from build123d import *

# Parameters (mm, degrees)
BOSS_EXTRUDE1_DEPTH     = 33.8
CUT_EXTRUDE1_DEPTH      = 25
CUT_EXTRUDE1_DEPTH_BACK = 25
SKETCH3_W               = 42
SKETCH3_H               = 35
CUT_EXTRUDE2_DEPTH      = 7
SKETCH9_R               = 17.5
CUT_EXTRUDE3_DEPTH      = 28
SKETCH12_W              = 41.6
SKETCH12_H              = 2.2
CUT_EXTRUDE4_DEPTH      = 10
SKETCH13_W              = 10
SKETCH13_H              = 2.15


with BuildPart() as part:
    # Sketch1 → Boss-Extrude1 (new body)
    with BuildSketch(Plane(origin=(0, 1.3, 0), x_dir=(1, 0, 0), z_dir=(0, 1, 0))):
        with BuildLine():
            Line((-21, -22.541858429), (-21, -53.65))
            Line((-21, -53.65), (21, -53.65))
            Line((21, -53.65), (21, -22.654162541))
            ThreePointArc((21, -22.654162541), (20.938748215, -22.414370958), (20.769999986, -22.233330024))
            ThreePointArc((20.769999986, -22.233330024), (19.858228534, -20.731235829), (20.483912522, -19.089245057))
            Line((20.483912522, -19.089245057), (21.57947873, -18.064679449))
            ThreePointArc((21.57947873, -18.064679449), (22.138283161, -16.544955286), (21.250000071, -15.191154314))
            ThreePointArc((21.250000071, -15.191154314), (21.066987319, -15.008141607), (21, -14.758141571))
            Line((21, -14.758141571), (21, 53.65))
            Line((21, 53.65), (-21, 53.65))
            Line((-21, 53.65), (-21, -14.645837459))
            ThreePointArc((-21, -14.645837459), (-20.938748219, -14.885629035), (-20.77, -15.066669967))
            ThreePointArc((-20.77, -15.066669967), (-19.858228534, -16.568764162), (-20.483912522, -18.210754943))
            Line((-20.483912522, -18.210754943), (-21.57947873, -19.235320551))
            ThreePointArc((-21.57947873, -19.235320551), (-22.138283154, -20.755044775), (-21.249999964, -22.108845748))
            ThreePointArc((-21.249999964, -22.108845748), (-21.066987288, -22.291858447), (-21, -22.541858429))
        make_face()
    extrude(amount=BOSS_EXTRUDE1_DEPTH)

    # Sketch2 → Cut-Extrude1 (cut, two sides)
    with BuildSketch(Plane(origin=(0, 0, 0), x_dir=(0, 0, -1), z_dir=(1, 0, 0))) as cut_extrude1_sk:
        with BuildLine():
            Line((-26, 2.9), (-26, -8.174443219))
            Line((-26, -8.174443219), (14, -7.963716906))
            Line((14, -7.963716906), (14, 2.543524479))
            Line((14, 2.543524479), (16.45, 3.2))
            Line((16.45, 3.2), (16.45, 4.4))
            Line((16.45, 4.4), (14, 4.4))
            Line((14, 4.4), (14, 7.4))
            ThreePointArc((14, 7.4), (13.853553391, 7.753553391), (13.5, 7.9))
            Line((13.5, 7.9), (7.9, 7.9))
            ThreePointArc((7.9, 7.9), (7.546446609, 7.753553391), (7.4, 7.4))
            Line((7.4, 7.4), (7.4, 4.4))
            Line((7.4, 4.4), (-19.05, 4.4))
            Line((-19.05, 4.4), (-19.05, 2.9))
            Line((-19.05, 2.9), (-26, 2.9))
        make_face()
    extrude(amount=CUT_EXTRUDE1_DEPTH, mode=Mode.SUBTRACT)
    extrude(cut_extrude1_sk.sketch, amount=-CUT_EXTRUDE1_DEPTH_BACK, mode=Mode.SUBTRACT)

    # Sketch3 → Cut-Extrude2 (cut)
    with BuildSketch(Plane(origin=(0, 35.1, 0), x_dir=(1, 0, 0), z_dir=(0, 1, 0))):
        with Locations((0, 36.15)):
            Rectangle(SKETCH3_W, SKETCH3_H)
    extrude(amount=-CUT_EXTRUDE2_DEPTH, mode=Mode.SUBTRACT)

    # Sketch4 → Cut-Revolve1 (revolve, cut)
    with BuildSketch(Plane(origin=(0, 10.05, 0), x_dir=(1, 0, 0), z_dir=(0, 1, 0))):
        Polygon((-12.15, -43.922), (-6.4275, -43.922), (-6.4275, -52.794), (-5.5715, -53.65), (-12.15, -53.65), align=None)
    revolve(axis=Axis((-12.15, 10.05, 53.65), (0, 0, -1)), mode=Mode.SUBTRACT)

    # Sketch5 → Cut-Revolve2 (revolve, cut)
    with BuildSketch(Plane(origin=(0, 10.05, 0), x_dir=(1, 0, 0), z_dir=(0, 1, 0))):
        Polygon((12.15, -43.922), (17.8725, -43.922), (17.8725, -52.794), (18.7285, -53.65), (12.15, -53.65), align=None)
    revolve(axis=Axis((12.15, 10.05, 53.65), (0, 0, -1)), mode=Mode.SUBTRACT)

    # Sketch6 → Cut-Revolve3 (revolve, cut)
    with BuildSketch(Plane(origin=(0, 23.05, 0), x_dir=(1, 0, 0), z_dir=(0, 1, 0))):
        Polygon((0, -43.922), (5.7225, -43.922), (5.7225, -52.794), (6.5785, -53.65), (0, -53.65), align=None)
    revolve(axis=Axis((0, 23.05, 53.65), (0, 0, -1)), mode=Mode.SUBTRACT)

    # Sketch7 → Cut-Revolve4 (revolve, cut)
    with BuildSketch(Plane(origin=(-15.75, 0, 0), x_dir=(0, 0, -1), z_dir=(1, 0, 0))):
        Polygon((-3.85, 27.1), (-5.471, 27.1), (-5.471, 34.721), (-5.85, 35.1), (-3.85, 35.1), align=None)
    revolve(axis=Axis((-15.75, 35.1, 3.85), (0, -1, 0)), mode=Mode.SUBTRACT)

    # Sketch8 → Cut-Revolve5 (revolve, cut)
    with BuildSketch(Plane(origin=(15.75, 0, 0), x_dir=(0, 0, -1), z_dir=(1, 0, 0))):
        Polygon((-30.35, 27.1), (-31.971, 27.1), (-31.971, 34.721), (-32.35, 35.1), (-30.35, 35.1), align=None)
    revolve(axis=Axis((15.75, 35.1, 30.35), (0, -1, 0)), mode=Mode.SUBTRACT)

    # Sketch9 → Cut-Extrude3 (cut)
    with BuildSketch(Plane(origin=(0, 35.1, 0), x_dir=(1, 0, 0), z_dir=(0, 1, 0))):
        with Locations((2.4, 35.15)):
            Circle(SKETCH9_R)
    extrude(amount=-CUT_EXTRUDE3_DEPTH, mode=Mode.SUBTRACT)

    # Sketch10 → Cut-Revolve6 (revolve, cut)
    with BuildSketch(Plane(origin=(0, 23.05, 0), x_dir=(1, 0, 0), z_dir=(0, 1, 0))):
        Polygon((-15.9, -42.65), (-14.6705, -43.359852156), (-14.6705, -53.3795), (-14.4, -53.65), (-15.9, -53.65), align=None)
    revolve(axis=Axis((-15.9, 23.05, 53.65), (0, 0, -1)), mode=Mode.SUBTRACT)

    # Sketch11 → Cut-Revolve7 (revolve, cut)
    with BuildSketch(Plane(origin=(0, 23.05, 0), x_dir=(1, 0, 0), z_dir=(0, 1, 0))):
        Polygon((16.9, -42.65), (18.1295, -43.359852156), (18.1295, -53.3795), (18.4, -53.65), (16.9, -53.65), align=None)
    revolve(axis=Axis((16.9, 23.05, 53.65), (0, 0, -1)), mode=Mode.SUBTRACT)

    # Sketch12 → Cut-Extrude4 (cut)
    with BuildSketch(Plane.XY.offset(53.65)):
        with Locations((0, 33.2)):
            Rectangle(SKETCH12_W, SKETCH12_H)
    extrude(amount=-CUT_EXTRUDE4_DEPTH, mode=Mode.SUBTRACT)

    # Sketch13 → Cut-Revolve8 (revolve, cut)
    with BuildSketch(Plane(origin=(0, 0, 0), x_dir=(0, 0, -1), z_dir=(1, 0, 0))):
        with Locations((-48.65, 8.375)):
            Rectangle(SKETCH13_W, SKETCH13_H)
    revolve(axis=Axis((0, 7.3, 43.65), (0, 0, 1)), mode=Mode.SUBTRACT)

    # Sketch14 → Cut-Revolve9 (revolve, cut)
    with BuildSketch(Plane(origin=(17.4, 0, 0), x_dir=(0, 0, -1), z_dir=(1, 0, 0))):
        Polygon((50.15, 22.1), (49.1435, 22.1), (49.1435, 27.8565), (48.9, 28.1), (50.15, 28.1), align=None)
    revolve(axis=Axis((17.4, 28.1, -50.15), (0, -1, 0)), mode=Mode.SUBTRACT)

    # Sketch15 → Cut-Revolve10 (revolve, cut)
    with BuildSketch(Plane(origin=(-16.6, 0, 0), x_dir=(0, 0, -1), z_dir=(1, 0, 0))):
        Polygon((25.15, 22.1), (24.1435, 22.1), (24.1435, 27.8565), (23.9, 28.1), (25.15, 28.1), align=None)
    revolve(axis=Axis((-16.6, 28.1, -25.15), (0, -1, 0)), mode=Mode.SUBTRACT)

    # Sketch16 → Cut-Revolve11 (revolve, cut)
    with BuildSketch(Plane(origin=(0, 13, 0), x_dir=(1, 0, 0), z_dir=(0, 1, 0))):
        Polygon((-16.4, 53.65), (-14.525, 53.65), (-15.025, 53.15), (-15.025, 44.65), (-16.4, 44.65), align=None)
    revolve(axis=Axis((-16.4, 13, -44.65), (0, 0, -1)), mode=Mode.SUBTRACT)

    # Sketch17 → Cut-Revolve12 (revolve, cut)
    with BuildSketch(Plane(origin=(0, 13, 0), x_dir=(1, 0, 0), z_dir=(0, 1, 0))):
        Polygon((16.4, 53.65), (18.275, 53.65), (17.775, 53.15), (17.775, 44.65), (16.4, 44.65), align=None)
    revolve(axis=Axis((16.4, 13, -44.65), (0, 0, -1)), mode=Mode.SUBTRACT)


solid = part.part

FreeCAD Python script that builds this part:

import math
import FreeCAD as App
import Part
import Sketcher
Q = App.Units.Quantity


def add_polygon(sketch, points):
    """Adds a closed chain of lines whose ends are joined by coincident constraints."""
    first, n = sketch.GeometryCount, len(points)
    for a, b in zip(points, points[1:] + points[:1]):
        sketch.addGeometry(Part.LineSegment(App.Vector(*a, 0), App.Vector(*b, 0)), False)
    for i in range(n):
        sketch.addConstraint(Sketcher.Constraint("Coincident", first + i, 2, first + (i + 1) % n, 1))

doc = App.newDocument("Part")
body = doc.addObject("PartDesign::Body", "Body")

# Sketch on XZ plane
sketch1 = body.newObject("Sketcher::SketchObject", "Sketch")
sketch1.AttachmentSupport = (doc.getObject("XZ_Plane"), [""])
sketch1.MapMode = "FlatFace"
sketch1.AttachmentOffset = App.Placement(App.Vector(0, 0, -1.3), App.Rotation())
sketch1.addGeometry([
    Part.LineSegment(App.Vector(-21, 22.54, 0), App.Vector(-21, 53.65, 0)),  # 0
    Part.LineSegment(App.Vector(-21, 53.65, 0), App.Vector(21, 53.65, 0)),  # 1
    Part.LineSegment(App.Vector(21, 53.65, 0), App.Vector(21, 22.65, 0)),  # 2
    Part.ArcOfCircle(Part.Circle(App.Vector(20.5, 22.65, 0), App.Vector(0, 0, 1), 0.5), math.radians(-57), math.radians(0)),  # 3
    Part.ArcOfCircle(Part.Circle(App.Vector(21.85, 20.55, 0), App.Vector(0, 0, 1), 2), math.radians(123), math.radians(227)),  # 4
    Part.LineSegment(App.Vector(20.48, 19.09, 0), App.Vector(21.58, 18.06, 0)),  # 5
    Part.ArcOfCircle(Part.Circle(App.Vector(20.35, 16.75, 0), App.Vector(0, 0, 1), 1.8), math.radians(-60), math.radians(47)),  # 6
    Part.ArcOfCircle(Part.Circle(App.Vector(21.5, 14.76, 0), App.Vector(0, 0, 1), 0.5), math.radians(120), math.radians(180)),  # 7
    Part.LineSegment(App.Vector(21, 14.76, 0), App.Vector(21, -53.65, 0)),  # 8
    Part.LineSegment(App.Vector(21, -53.65, 0), App.Vector(-21, -53.65, 0)),  # 9
    Part.LineSegment(App.Vector(-21, -53.65, 0), App.Vector(-21, 14.65, 0)),  # 10
    Part.ArcOfCircle(Part.Circle(App.Vector(-20.5, 14.65, 0), App.Vector(0, 0, 1), 0.5), math.radians(123), math.radians(180)),  # 11
    Part.ArcOfCircle(Part.Circle(App.Vector(-21.85, 16.75, 0), App.Vector(0, 0, 1), 2), math.radians(-57), math.radians(47)),  # 12
    Part.LineSegment(App.Vector(-20.48, 18.21, 0), App.Vector(-21.58, 19.24, 0)),  # 13
    Part.ArcOfCircle(Part.Circle(App.Vector(-20.35, 20.55, 0), App.Vector(0, 0, 1), 1.8), math.radians(120), math.radians(227)),  # 14
    Part.ArcOfCircle(Part.Circle(App.Vector(-21.5, 22.54, 0), App.Vector(0, 0, 1), 0.5), math.radians(-60), math.radians(0)),  # 15
], False)
sketch1.addConstraint([
    Sketcher.Constraint("Coincident", 0, 2, 1, 1),
    Sketcher.Constraint("Coincident", 1, 2, 2, 1),
    Sketcher.Constraint("Tangent", 2, 2, 3, 2),
    Sketcher.Constraint("Tangent", 3, 1, 4, 1),
    Sketcher.Constraint("Tangent", 4, 2, 5, 1),
    Sketcher.Constraint("Tangent", 5, 2, 6, 2),
    Sketcher.Constraint("Tangent", 6, 1, 7, 1),
    Sketcher.Constraint("Tangent", 7, 2, 8, 1),
    Sketcher.Constraint("Coincident", 8, 2, 9, 1),
    Sketcher.Constraint("Coincident", 9, 2, 10, 1),
    Sketcher.Constraint("Tangent", 10, 2, 11, 2),
    Sketcher.Constraint("Tangent", 11, 1, 12, 1),
    Sketcher.Constraint("Tangent", 12, 2, 13, 1),
    Sketcher.Constraint("Tangent", 13, 2, 14, 2),
    Sketcher.Constraint("Tangent", 14, 1, 15, 1),
    Sketcher.Constraint("Tangent", 15, 2, 0, 1),
    Sketcher.Constraint("Vertical", 0),
    Sketcher.Constraint("Horizontal", 1),
    Sketcher.Constraint("Vertical", 2),
    Sketcher.Constraint("Vertical", 8),
    Sketcher.Constraint("Horizontal", 9),
    Sketcher.Constraint("Vertical", 10),
    Sketcher.Constraint("Equal", 3, 7),
    Sketcher.Constraint("Equal", 7, 11),
    Sketcher.Constraint("Equal", 4, 12),
    Sketcher.Constraint("Equal", 6, 14),
    Sketcher.Constraint("Equal", 11, 15),
    Sketcher.Constraint("Symmetric", 0, 2, 8, 2, -1, 1),
    Sketcher.Constraint("Parallel", 5, 13),
    Sketcher.Constraint("Horizontal", 6, 3, 12, 3),
    Sketcher.Constraint("Horizontal", 4, 3, 14, 3),
    Sketcher.Constraint("Vertical", 2, 2, 7, 2),
    Sketcher.Constraint("Vertical", 0, 2, 9, 2),
    Sketcher.Constraint("Radius", 4, 2.0),
    Sketcher.Constraint("Radius", 3, 0.5),
    Sketcher.Constraint("Radius", 6, 1.8),
    Sketcher.Constraint("DistanceX", 1, 1, 1, 2, 42.0),
    Sketcher.Constraint("Distance", 5, 1.5),
    Sketcher.Constraint("DistanceX", 6, 3, 4, 3, 1.5),
    Sketcher.Constraint("DistanceX", 12, 3, 6, 3, 42.2),
    Sketcher.Constraint("DistanceY", 14, 3, 0, 2, 33.1),
    Sketcher.Constraint("DistanceX", 6, 3, 6, 1, 0.9),
    Sketcher.Constraint("DistanceY", 8, 2, 6, 3, 70.4),
])
pad1 = body.newObject("PartDesign::Pad", "Pad")
pad1.Profile = sketch1
pad1.Length = 33.8
pad1.Reversed = True

# Sketch on YZ plane
sketch2 = body.newObject("Sketcher::SketchObject", "Sketch001")
sketch2.AttachmentSupport = (doc.getObject("YZ_Plane"), [""])
sketch2.MapMode = "FlatFace"
sketch2.addGeometry([
    Part.LineSegment(App.Vector(2.9, 26, 0), App.Vector(-8.17, 26, 0)),  # 0
    Part.LineSegment(App.Vector(-8.17, 26, 0), App.Vector(-7.96, -14, 0)),  # 1
    Part.LineSegment(App.Vector(-7.96, -14, 0), App.Vector(2.54, -14, 0)),  # 2
    Part.LineSegment(App.Vector(2.54, -14, 0), App.Vector(3.2, -16.45, 0)),  # 3
    Part.LineSegment(App.Vector(3.2, -16.45, 0), App.Vector(4.4, -16.45, 0)),  # 4
    Part.LineSegment(App.Vector(4.4, -16.45, 0), App.Vector(4.4, -14, 0)),  # 5
    Part.LineSegment(App.Vector(4.4, -14, 0), App.Vector(7.4, -14, 0)),  # 6
    Part.ArcOfCircle(Part.Circle(App.Vector(7.4, -13.5, 0), App.Vector(0, 0, 1), 0.5), math.radians(-90), math.radians(0)),  # 7
    Part.LineSegment(App.Vector(7.9, -13.5, 0), App.Vector(7.9, -7.9, 0)),  # 8
    Part.ArcOfCircle(Part.Circle(App.Vector(7.4, -7.9, 0), App.Vector(0, 0, 1), 0.5), math.radians(0), math.radians(90)),  # 9
    Part.LineSegment(App.Vector(7.4, -7.4, 0), App.Vector(4.4, -7.4, 0)),  # 10
    Part.LineSegment(App.Vector(4.4, -7.4, 0), App.Vector(4.4, 19.05, 0)),  # 11
    Part.LineSegment(App.Vector(4.4, 19.05, 0), App.Vector(2.9, 19.05, 0)),  # 12
    Part.LineSegment(App.Vector(2.9, 19.05, 0), App.Vector(2.9, 26, 0)),  # 13
], False)
sketch2.addConstraint([
    Sketcher.Constraint("Coincident", 0, 2, 1, 1),
    Sketcher.Constraint("Coincident", 1, 2, 2, 1),
    Sketcher.Constraint("Coincident", 2, 2, 3, 1),
    Sketcher.Constraint("Coincident", 3, 2, 4, 1),
    Sketcher.Constraint("Coincident", 4, 2, 5, 1),
    Sketcher.Constraint("Coincident", 5, 2, 6, 1),
    Sketcher.Constraint("Tangent", 6, 2, 7, 1),
    Sketcher.Constraint("Tangent", 7, 2, 8, 1),
    Sketcher.Constraint("Tangent", 8, 2, 9, 1),
    Sketcher.Constraint("Tangent", 9, 2, 10, 1),
    Sketcher.Constraint("Coincident", 10, 2, 11, 1),
    Sketcher.Constraint("Coincident", 11, 2, 12, 1),
    Sketcher.Constraint("Coincident", 12, 2, 13, 1),
    Sketcher.Constraint("Coincident", 13, 2, 0, 1),
    Sketcher.Constraint("Horizontal", 0),
    Sketcher.Constraint("Horizontal", 2),
    Sketcher.Constraint("Horizontal", 4),
    Sketcher.Constraint("Vertical", 5),
    Sketcher.Constraint("Horizontal", 6),
    Sketcher.Constraint("Vertical", 8),
    Sketcher.Constraint("Horizontal", 10),
    Sketcher.Constraint("Vertical", 11),
    Sketcher.Constraint("Horizontal", 12),
    Sketcher.Constraint("Vertical", 13),
    Sketcher.Constraint("Equal", 7, 9),
    Sketcher.Constraint("Horizontal", 2, 2, 5, 2),
    Sketcher.Constraint("Vertical", 5, 2, 10, 2),
    Sketcher.Constraint("Radius", 7, 0.5),
    Sketcher.Constraint("DistanceX", 6, 1, 6, 2, 3.0),
    Sketcher.Constraint("Angle", 3, Q("-75 deg")),
    Sketcher.Constraint("DistanceX", 4, 1, 4, 2, 1.2),
    Sketcher.Constraint("DistanceX", 12, 2, 12, 1, 1.5),
    Sketcher.Constraint("DistanceY", 8, 1, 8, 2, 5.6),
    Sketcher.Constraint("DistanceY", -1, 1, 0, 2, 26.0),
    Sketcher.Constraint("DistanceY", 1, 2, -1, 1, 14.0),
    Sketcher.Constraint("DistanceY", 5, 1, 5, 2, 2.45),
    Sketcher.Constraint("DistanceY", 11, 1, 11, 2, 26.45),
    Sketcher.Constraint("DistanceX", -1, 1, 7, 3, 7.4),
    Sketcher.Constraint("DistanceX", 2, 1, 2, 2, 10.507241),
    Sketcher.Constraint("DistanceX", 0, 2, 0, 1, 11.074443),
])
pocket1 = body.newObject("PartDesign::Pocket", "Pocket")
pocket1.Profile = sketch2
pocket1.Type = "ThroughAll"
pocket1.Midplane = True

# Sketch on XZ plane
sketch3 = body.newObject("Sketcher::SketchObject", "Sketch002")
sketch3.AttachmentSupport = (doc.getObject("XZ_Plane"), [""])
sketch3.MapMode = "FlatFace"
sketch3.AttachmentOffset = App.Placement(App.Vector(0, 0, -35.1), App.Rotation())
add_polygon(sketch3, [(-21, -54), (-21, -19), (21, -19), (21, -54)])  # lines 0-3
sketch3.addConstraint([
    Sketcher.Constraint("Vertical", 0),
    Sketcher.Constraint("Horizontal", 1),
    Sketcher.Constraint("Vertical", 2),
    Sketcher.Constraint("Horizontal", 3),
    Sketcher.Constraint("DistanceX", 1, 1, 1, 2, 42.0),
    Sketcher.Constraint("DistanceY", 0, 1, 0, 2, 35.0),
    Sketcher.Constraint("DistanceX", 0, 2, -1, 1, 21.0),
    Sketcher.Constraint("DistanceY", 0, 2, -1, 1, 18.65),
])
pocket2 = body.newObject("PartDesign::Pocket", "Pocket001")
pocket2.Profile = sketch3
pocket2.Length = 7
pocket2.Reversed = True

# Sketch on XZ plane
sketch4 = body.newObject("Sketcher::SketchObject", "Sketch003")
sketch4.AttachmentSupport = (doc.getObject("XZ_Plane"), [""])
sketch4.MapMode = "FlatFace"
sketch4.AttachmentOffset = App.Placement(App.Vector(0, 0, -10.05), App.Rotation())
add_polygon(sketch4, [(-6.4, 43.9), (-12.2, 43.9), (-12.2, 53.6), (-5.6, 53.6), (-6.4, 52.8)])  # lines 0-4
sketch4.addGeometry(Part.LineSegment(App.Vector(-12.2, 53.6, 0), App.Vector(-12.2, 43.9, 0)), True)  # axis
sketch4.addConstraint([
    Sketcher.Constraint("Horizontal", 0),
    Sketcher.Constraint("Vertical", 1),
    Sketcher.Constraint("Horizontal", 2),
    Sketcher.Constraint("Vertical", 4),
    Sketcher.Constraint("Vertical", 5),
    Sketcher.Constraint("Coincident", 5, 1, 1, 2),
    Sketcher.Constraint("Horizontal", 4, 2, 5, 2),
    Sketcher.Constraint("Angle", 3, Q("-135 deg")),
    Sketcher.Constraint("DistanceY", 1, 1, 1, 2, 9.728),
    Sketcher.Constraint("DistanceY", 4, 2, 4, 1, 8.872),
    Sketcher.Constraint("DistanceX", 0, 2, -1, 1, 12.15),
    Sketcher.Constraint("DistanceY", -1, 1, 1, 2, 53.65),
    Sketcher.Constraint("DistanceX", 0, 2, 0, 1, 5.7225),
])
groove = body.newObject("PartDesign::Groove", "Groove")
groove.Profile = sketch4
groove.ReferenceAxis = (sketch4, ["Axis0"])
groove.Angle = 360

# Sketch on XZ plane
sketch5 = body.newObject("Sketcher::SketchObject", "Sketch004")
sketch5.AttachmentSupport = (doc.getObject("XZ_Plane"), [""])
sketch5.MapMode = "FlatFace"
sketch5.AttachmentOffset = App.Placement(App.Vector(0, 0, -10.05), App.Rotation())
add_polygon(sketch5, [(17.9, 43.9), (12.2, 43.9), (12.2, 53.6), (18.7, 53.6), (17.9, 52.8)])  # lines 0-4
sketch5.addGeometry(Part.LineSegment(App.Vector(12.2, 53.6, 0), App.Vector(12.2, 43.9, 0)), True)  # axis
sketch5.addConstraint([
    Sketcher.Constraint("Horizontal", 0),
    Sketcher.Constraint("Vertical", 1),
    Sketcher.Constraint("Horizontal", 2),
    Sketcher.Constraint("Vertical", 4),
    Sketcher.Constraint("Vertical", 5),
    Sketcher.Constraint("Coincident", 5, 1, 1, 2),
    Sketcher.Constraint("Horizontal", 4, 2, 5, 2),
    Sketcher.Constraint("Angle", 3, Q("-135 deg")),
    Sketcher.Constraint("DistanceY", 1, 1, 1, 2, 9.728),
    Sketcher.Constraint("DistanceY", 4, 2, 4, 1, 8.872),
    Sketcher.Constraint("DistanceX", -1, 1, 0, 2, 12.15),
    Sketcher.Constraint("DistanceY", -1, 1, 1, 2, 53.65),
    Sketcher.Constraint("DistanceX", 0, 2, 0, 1, 5.7225),
])
groove2 = body.newObject("PartDesign::Groove", "Groove001")
groove2.Profile = sketch5
groove2.ReferenceAxis = (sketch5, ["Axis0"])
groove2.Angle = 360

# Sketch on XZ plane
sketch6 = body.newObject("Sketcher::SketchObject", "Sketch005")
sketch6.AttachmentSupport = (doc.getObject("XZ_Plane"), [""])
sketch6.MapMode = "FlatFace"
sketch6.AttachmentOffset = App.Placement(App.Vector(0, 0, -23.05), App.Rotation())
add_polygon(sketch6, [(5.7, 43.9), (0, 43.9), (0, 53.6), (6.6, 53.6), (5.7, 52.8)])  # lines 0-4
sketch6.addConstraint([
    Sketcher.Constraint("Horizontal", 0),
    Sketcher.Constraint("Vertical", 1),
    Sketcher.Constraint("Horizontal", 2),
    Sketcher.Constraint("Vertical", 4),
    Sketcher.Constraint("PointOnObject", 0, 2, -2),
    Sketcher.Constraint("Angle", 3, Q("-135 deg")),
    Sketcher.Constraint("DistanceY", 1, 1, 1, 2, 9.728),
    Sketcher.Constraint("DistanceY", 4, 2, 4, 1, 8.872),
    Sketcher.Constraint("DistanceY", -1, 1, 1, 2, 53.65),
    Sketcher.Constraint("DistanceX", 0, 2, 0, 1, 5.7225),
])
groove3 = body.newObject("PartDesign::Groove", "Groove002")
groove3.Profile = sketch6
groove3.ReferenceAxis = (sketch6, ["V_Axis"])
groove3.Angle = 360

# Sketch on YZ plane
sketch7 = body.newObject("Sketcher::SketchObject", "Sketch006")
sketch7.AttachmentSupport = (doc.getObject("YZ_Plane"), [""])
sketch7.MapMode = "FlatFace"
sketch7.AttachmentOffset = App.Placement(App.Vector(0, 0, -15.75), App.Rotation())
add_polygon(sketch7, [(27.1, 5.5), (27.1, 3.9), (35.1, 3.9), (35.1, 5.8), (34.7, 5.5)])  # lines 0-4
sketch7.addGeometry(Part.LineSegment(App.Vector(35.1, 3.9, 0), App.Vector(27.1, 3.9, 0)), True)  # axis
sketch7.addConstraint([
    Sketcher.Constraint("Vertical", 0),
    Sketcher.Constraint("Horizontal", 1),
    Sketcher.Constraint("Vertical", 2),
    Sketcher.Constraint("Horizontal", 4),
    Sketcher.Constraint("Horizontal", 5),
    Sketcher.Constraint("Coincident", 5, 1, 1, 2),
    Sketcher.Constraint("Vertical", 4, 2, 5, 2),
    Sketcher.Constraint("DistanceX", 1, 1, 1, 2, 8.0),
    Sketcher.Constraint("DistanceY", 2, 1, 2, 2, 2.0),
    Sketcher.Constraint("Angle", 3, Q("-135 deg")),
    Sketcher.Constraint("DistanceX", -1, 1, 0, 2, 27.1),
    Sketcher.Constraint("DistanceX", 4, 2, 4, 1, 7.621),
    Sketcher.Constraint("DistanceY", -1, 1, 0, 2, 3.85),
])
groove4 = body.newObject("PartDesign::Groove", "Groove003")
groove4.Profile = sketch7
groove4.ReferenceAxis = (sketch7, ["Axis0"])
groove4.Angle = 360

# Sketch on YZ plane
sketch8 = body.newObject("Sketcher::SketchObject", "Sketch007")
sketch8.AttachmentSupport = (doc.getObject("YZ_Plane"), [""])
sketch8.MapMode = "FlatFace"
sketch8.AttachmentOffset = App.Placement(App.Vector(0, 0, 15.75), App.Rotation())
add_polygon(sketch8, [(27.1, 32), (27.1, 30.4), (35.1, 30.4), (35.1, 32.4), (34.7, 32)])  # lines 0-4
sketch8.addGeometry(Part.LineSegment(App.Vector(35.1, 30.4, 0), App.Vector(27.1, 30.4, 0)), True)  # axis
sketch8.addConstraint([
    Sketcher.Constraint("Vertical", 0),
    Sketcher.Constraint("Horizontal", 1),
    Sketcher.Constraint("Vertical", 2),
    Sketcher.Constraint("Horizontal", 4),
    Sketcher.Constraint("Horizontal", 5),
    Sketcher.Constraint("Coincident", 5, 1, 1, 2),
    Sketcher.Constraint("Vertical", 4, 2, 5, 2),
    Sketcher.Constraint("DistanceX", 1, 1, 1, 2, 8.0),
    Sketcher.Constraint("DistanceY", 2, 1, 2, 2, 2.0),
    Sketcher.Constraint("Angle", 3, Q("-135 deg")),
    Sketcher.Constraint("DistanceX", -1, 1, 0, 2, 27.1),
    Sketcher.Constraint("DistanceX", 4, 2, 4, 1, 7.621),
    Sketcher.Constraint("DistanceY", -1, 1, 0, 2, 30.35),
])
groove5 = body.newObject("PartDesign::Groove", "Groove004")
groove5.Profile = sketch8
groove5.ReferenceAxis = (sketch8, ["Axis0"])
groove5.Angle = 360

# Sketch on XZ plane
sketch9 = body.newObject("Sketcher::SketchObject", "Sketch008")
sketch9.AttachmentSupport = (doc.getObject("XZ_Plane"), [""])
sketch9.MapMode = "FlatFace"
sketch9.AttachmentOffset = App.Placement(App.Vector(0, 0, -35.1), App.Rotation())
sketch9.addGeometry(Part.Circle(App.Vector(2, -35, 0), App.Vector(0, 0, 1), 18), False)
sketch9.addConstraint([
    Sketcher.Constraint("Diameter", 0, 35.0),
    Sketcher.Constraint("DistanceX", -1, 1, 0, 3, 2.4),
    Sketcher.Constraint("DistanceY", 0, 3, -1, 1, 35.15),
])
pocket3 = body.newObject("PartDesign::Pocket", "Pocket002")
pocket3.Profile = sketch9
pocket3.Length = 28
pocket3.Reversed = True

# Sketch on XZ plane
sketch10 = body.newObject("Sketcher::SketchObject", "Sketch009")
sketch10.AttachmentSupport = (doc.getObject("XZ_Plane"), [""])
sketch10.MapMode = "FlatFace"
sketch10.AttachmentOffset = App.Placement(App.Vector(0, 0, -23.05), App.Rotation())
add_polygon(sketch10, [(-14.67, 43.36), (-15.9, 42.65), (-15.9, 53.65), (-14.4, 53.65), (-14.67, 53.38)])  # lines 0-4
sketch10.addGeometry(Part.LineSegment(App.Vector(-15.9, 53.65, 0), App.Vector(-15.9, 42.65, 0)), True)  # axis
sketch10.addConstraint([
    Sketcher.Constraint("Vertical", 1),
    Sketcher.Constraint("Horizontal", 2),
    Sketcher.Constraint("Vertical", 4),
    Sketcher.Constraint("Vertical", 5),
    Sketcher.Constraint("Coincident", 5, 1, 1, 2),
    Sketcher.Constraint("Equal", 1, 5),
    Sketcher.Constraint("DistanceY", 1, 1, 1, 2, 11.0),
    Sketcher.Constraint("Angle", 0, Q("-150 deg")),
    Sketcher.Constraint("Angle", 3, Q("-135 deg")),
    Sketcher.Constraint("DistanceX", 2, 1, 2, 2, 1.5),
    Sketcher.Constraint("DistanceX", 0, 2, -1, 1, 15.9),
    Sketcher.Constraint("DistanceY", -1, 1, 0, 2, 42.65),
    Sketcher.Constraint("DistanceX", 3, 2, -1, 1, 14.6705),
])
groove6 = body.newObject("PartDesign::Groove", "Groove005")
groove6.Profile = sketch10
groove6.ReferenceAxis = (sketch10, ["Axis0"])
groove6.Angle = 360

# Sketch on XZ plane
sketch11 = body.newObject("Sketcher::SketchObject", "Sketch010")
sketch11.AttachmentSupport = (doc.getObject("XZ_Plane"), [""])
sketch11.MapMode = "FlatFace"
sketch11.AttachmentOffset = App.Placement(App.Vector(0, 0, -23.05), App.Rotation())
add_polygon(sketch11, [(18.13, 43.36), (16.9, 42.65), (16.9, 53.65), (18.4, 53.65), (18.13, 53.38)])  # lines 0-4
sketch11.addGeometry(Part.LineSegment(App.Vector(16.9, 53.65, 0), App.Vector(16.9, 42.65, 0)), True)  # axis
sketch11.addConstraint([
    Sketcher.Constraint("Vertical", 1),
    Sketcher.Constraint("Horizontal", 2),
    Sketcher.Constraint("Vertical", 4),
    Sketcher.Constraint("Vertical", 5),
    Sketcher.Constraint("Coincident", 5, 1, 1, 2),
    Sketcher.Constraint("Equal", 1, 5),
    Sketcher.Constraint("DistanceY", 1, 1, 1, 2, 11.0),
    Sketcher.Constraint("Angle", 0, Q("-150 deg")),
    Sketcher.Constraint("Angle", 3, Q("-135 deg")),
    Sketcher.Constraint("DistanceX", 2, 1, 2, 2, 1.5),
    Sketcher.Constraint("DistanceX", -1, 1, 0, 2, 16.9),
    Sketcher.Constraint("DistanceY", -1, 1, 0, 2, 42.65),
    Sketcher.Constraint("DistanceX", -1, 1, 3, 2, 18.1295),
])
groove7 = body.newObject("PartDesign::Groove", "Groove006")
groove7.Profile = sketch11
groove7.ReferenceAxis = (sketch11, ["Axis0"])
groove7.Angle = 360

# Sketch on XY plane
sketch12 = body.newObject("Sketcher::SketchObject", "Sketch011")
sketch12.AttachmentSupport = (doc.getObject("XY_Plane"), [""])
sketch12.MapMode = "FlatFace"
sketch12.AttachmentOffset = App.Placement(App.Vector(0, 0, 53.65), App.Rotation())
add_polygon(sketch12, [(-20.8, 34.3), (-20.8, 32.1), (20.8, 32.1), (20.8, 34.3)])  # lines 0-3
sketch12.addConstraint([
    Sketcher.Constraint("Vertical", 0),
    Sketcher.Constraint("Horizontal", 1),
    Sketcher.Constraint("Vertical", 2),
    Sketcher.Constraint("Horizontal", 3),
    Sketcher.Constraint("DistanceX", 1, 1, 1, 2, 41.6),
    Sketcher.Constraint("DistanceY", 0, 2, 0, 1, 2.2),
    Sketcher.Constraint("DistanceX", 0, 2, -1, 1, 20.8),
    Sketcher.Constraint("DistanceY", -1, 1, 0, 2, 32.1),
])
pocket4 = body.newObject("PartDesign::Pocket", "Pocket003")
pocket4.Profile = sketch12
pocket4.Length = 10

# Sketch on YZ plane
sketch13 = body.newObject("Sketcher::SketchObject", "Sketch012")
sketch13.AttachmentSupport = (doc.getObject("YZ_Plane"), [""])
sketch13.MapMode = "FlatFace"
add_polygon(sketch13, [(9.4, 53.6), (7.3, 53.6), (7.3, 43.6), (9.4, 43.6)])  # lines 0-3
sketch13.addGeometry(Part.LineSegment(App.Vector(7.3, 43.6, 0), App.Vector(7.3, 53.6, 0)), True)  # axis
sketch13.addConstraint([
    Sketcher.Constraint("Horizontal", 0),
    Sketcher.Constraint("Vertical", 1),
    Sketcher.Constraint("Horizontal", 2),
    Sketcher.Constraint("Vertical", 3),
    Sketcher.Constraint("Vertical", 4),
    Sketcher.Constraint("Coincident", 4, 1, 1, 2),
    Sketcher.Constraint("Horizontal", 3, 2, 4, 2),
    Sketcher.Constraint("DistanceY", 1, 2, 1, 1, 10.0),
    Sketcher.Constraint("DistanceX", 0, 2, 0, 1, 2.15),
    Sketcher.Constraint("DistanceX", -1, 1, 0, 2, 7.3),
    Sketcher.Constraint("DistanceY", -1, 1, 0, 2, 53.65),
])
groove8 = body.newObject("PartDesign::Groove", "Groove007")
groove8.Profile = sketch13
groove8.ReferenceAxis = (sketch13, ["Axis0"])
groove8.Angle = 360

# Sketch on YZ plane
sketch14 = body.newObject("Sketcher::SketchObject", "Sketch013")
sketch14.AttachmentSupport = (doc.getObject("YZ_Plane"), [""])
sketch14.MapMode = "FlatFace"
sketch14.AttachmentOffset = App.Placement(App.Vector(0, 0, 17.4), App.Rotation())
add_polygon(sketch14, [(22.1, -49.14), (22.1, -50.15), (28.1, -50.15), (28.1, -48.9), (27.86, -49.14)])  # lines 0-4
sketch14.addGeometry(Part.LineSegment(App.Vector(28.1, -50.15, 0), App.Vector(22.1, -50.15, 0)), True)  # axis
sketch14.addConstraint([
    Sketcher.Constraint("Vertical", 0),
    Sketcher.Constraint("Horizontal", 1),
    Sketcher.Constraint("Vertical", 2),
    Sketcher.Constraint("Horizontal", 4),
    Sketcher.Constraint("Horizontal", 5),
    Sketcher.Constraint("Coincident", 5, 1, 1, 2),
    Sketcher.Constraint("Vertical", 4, 2, 5, 2),
    Sketcher.Constraint("DistanceX", 1, 1, 1, 2, 6.0),
    Sketcher.Constraint("Angle", 3, Q("-135 deg")),
    Sketcher.Constraint("DistanceY", 2, 1, 2, 2, 1.25),
    Sketcher.Constraint("DistanceX", -1, 1, 0, 2, 22.1),
    Sketcher.Constraint("DistanceY", 2, 2, -1, 1, 48.9),
    Sketcher.Constraint("DistanceX", 4, 2, 4, 1, 5.7565),
])
groove9 = body.newObject("PartDesign::Groove", "Groove008")
groove9.Profile = sketch14
groove9.ReferenceAxis = (sketch14, ["Axis0"])
groove9.Angle = 360

# Sketch on YZ plane
sketch15 = body.newObject("Sketcher::SketchObject", "Sketch014")
sketch15.AttachmentSupport = (doc.getObject("YZ_Plane"), [""])
sketch15.MapMode = "FlatFace"
sketch15.AttachmentOffset = App.Placement(App.Vector(0, 0, -16.6), App.Rotation())
add_polygon(sketch15, [(22.1, -24.14), (22.1, -25.15), (28.1, -25.15), (28.1, -23.9), (27.86, -24.14)])  # lines 0-4
sketch15.addGeometry(Part.LineSegment(App.Vector(28.1, -25.15, 0), App.Vector(22.1, -25.15, 0)), True)  # axis
sketch15.addConstraint([
    Sketcher.Constraint("Vertical", 0),
    Sketcher.Constraint("Horizontal", 1),
    Sketcher.Constraint("Vertical", 2),
    Sketcher.Constraint("Horizontal", 4),
    Sketcher.Constraint("Horizontal", 5),
    Sketcher.Constraint("Coincident", 5, 1, 1, 2),
    Sketcher.Constraint("Vertical", 4, 2, 5, 2),
    Sketcher.Constraint("DistanceX", 1, 1, 1, 2, 6.0),
    Sketcher.Constraint("Angle", 3, Q("-135 deg")),
    Sketcher.Constraint("DistanceY", 2, 1, 2, 2, 1.25),
    Sketcher.Constraint("DistanceX", -1, 1, 0, 2, 22.1),
    Sketcher.Constraint("DistanceY", 2, 2, -1, 1, 23.9),
    Sketcher.Constraint("DistanceX", 4, 2, 4, 1, 5.7565),
])
groove10 = body.newObject("PartDesign::Groove", "Groove009")
groove10.Profile = sketch15
groove10.ReferenceAxis = (sketch15, ["Axis0"])
groove10.Angle = 360

# Sketch on XZ plane
sketch16 = body.newObject("Sketcher::SketchObject", "Sketch015")
sketch16.AttachmentSupport = (doc.getObject("XZ_Plane"), [""])
sketch16.MapMode = "FlatFace"
sketch16.AttachmentOffset = App.Placement(App.Vector(0, 0, -13), App.Rotation())
add_polygon(sketch16, [(-14.5, -53.6), (-16.4, -53.6), (-16.4, -44.6), (-15, -44.6), (-15, -53.1)])  # lines 0-4
sketch16.addGeometry(Part.LineSegment(App.Vector(-16.4, -44.6, 0), App.Vector(-16.4, -53.6, 0)), True)  # axis
sketch16.addConstraint([
    Sketcher.Constraint("Horizontal", 0),
    Sketcher.Constraint("Vertical", 1),
    Sketcher.Constraint("Horizontal", 2),
    Sketcher.Constraint("Vertical", 3),
    Sketcher.Constraint("Vertical", 5),
    Sketcher.Constraint("Coincident", 5, 1, 1, 2),
    Sketcher.Constraint("Horizontal", 4, 2, 5, 2),
    Sketcher.Constraint("DistanceY", 1, 1, 1, 2, 9.0),
    Sketcher.Constraint("Angle", 4, Q("-45 deg")),
    Sketcher.Constraint("DistanceY", 3, 2, 3, 1, 8.5),
    Sketcher.Constraint("DistanceX", 0, 2, -1, 1, 16.4),
    Sketcher.Constraint("DistanceX", 0, 2, 0, 1, 1.875),
    Sketcher.Constraint("DistanceY", 0, 2, -1, 1, 53.65),
])
groove11 = body.newObject("PartDesign::Groove", "Groove010")
groove11.Profile = sketch16
groove11.ReferenceAxis = (sketch16, ["Axis0"])
groove11.Angle = 360

# Sketch on XZ plane
sketch17 = body.newObject("Sketcher::SketchObject", "Sketch016")
sketch17.AttachmentSupport = (doc.getObject("XZ_Plane"), [""])
sketch17.MapMode = "FlatFace"
sketch17.AttachmentOffset = App.Placement(App.Vector(0, 0, -13), App.Rotation())
add_polygon(sketch17, [(18.3, -53.6), (16.4, -53.6), (16.4, -44.6), (17.8, -44.6), (17.8, -53.1)])  # lines 0-4
sketch17.addGeometry(Part.LineSegment(App.Vector(16.4, -44.6, 0), App.Vector(16.4, -53.6, 0)), True)  # axis
sketch17.addConstraint([
    Sketcher.Constraint("Horizontal", 0),
    Sketcher.Constraint("Vertical", 1),
    Sketcher.Constraint("Horizontal", 2),
    Sketcher.Constraint("Vertical", 3),
    Sketcher.Constraint("Vertical", 5),
    Sketcher.Constraint("Coincident", 5, 1, 1, 2),
    Sketcher.Constraint("Horizontal", 4, 2, 5, 2),
    Sketcher.Constraint("DistanceY", 1, 1, 1, 2, 9.0),
    Sketcher.Constraint("Angle", 4, Q("-45 deg")),
    Sketcher.Constraint("DistanceY", 3, 2, 3, 1, 8.5),
    Sketcher.Constraint("DistanceX", -1, 1, 0, 2, 16.4),
    Sketcher.Constraint("DistanceX", 0, 2, 0, 1, 1.875),
    Sketcher.Constraint("DistanceY", 0, 2, -1, 1, 53.65),
])
groove12 = body.newObject("PartDesign::Groove", "Groove011")
groove12.Profile = sketch17
groove12.ReferenceAxis = (sketch17, ["Axis0"])
groove12.Angle = 360

doc.recompute()
